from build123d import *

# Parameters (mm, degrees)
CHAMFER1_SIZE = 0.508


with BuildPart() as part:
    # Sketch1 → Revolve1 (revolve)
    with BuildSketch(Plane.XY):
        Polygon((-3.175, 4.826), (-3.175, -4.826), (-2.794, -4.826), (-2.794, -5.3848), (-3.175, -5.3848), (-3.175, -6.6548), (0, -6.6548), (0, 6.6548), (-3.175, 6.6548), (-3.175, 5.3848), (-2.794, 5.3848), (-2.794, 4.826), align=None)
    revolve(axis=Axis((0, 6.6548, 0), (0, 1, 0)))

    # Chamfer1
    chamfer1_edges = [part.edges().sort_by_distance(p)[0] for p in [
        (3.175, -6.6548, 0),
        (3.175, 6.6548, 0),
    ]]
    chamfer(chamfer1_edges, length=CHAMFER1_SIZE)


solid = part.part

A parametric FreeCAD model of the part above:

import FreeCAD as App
import Part
import Sketcher

V = App.Vector
Q = App.Units.Quantity


def edges_at(feature, points):
    """Names of the edges that pass closest to the given points."""
    edges = feature.Shape.Edges
    near = lambda p: min(range(len(edges)), key=lambda i: edges[i].distToShape(Part.Vertex(*p))[0])
    return sorted({f"Edge{near(p) + 1}" for p in points})

doc = App.newDocument("Part")
body = doc.addObject("PartDesign::Body", "Body")

# Sketch on XY plane
sketch1 = doc.addObject("Sketcher::SketchObject", "Sketch")
body.addObject(sketch1)
sketch1.AttachmentSupport = (doc.XY_Plane, [""])
sketch1.MapMode = "FlatFace"
sketch1.addGeometry(Part.LineSegment(V(-3.17, 4.83, 0), V(-3.17, -4.83, 0)), False)
sketch1.addGeometry(Part.LineSegment(V(-3.17, -4.83, 0), V(-2.79, -4.83, 0)), False)
sketch1.addGeometry(Part.LineSegment(V(-2.79, -4.83, 0), V(-2.79, -5.38, 0)), False)
sketch1.addGeometry(Part.LineSegment(V(-2.79, -5.38, 0), V(-3.17, -5.38, 0)), False)
sketch1.addGeometry(Part.LineSegment(V(-3.17, -5.38, 0), V(-3.17, -6.65, 0)), False)
sketch1.addGeometry(Part.LineSegment(V(-3.17, -6.65, 0), V(0, -6.65, 0)), False)
sketch1.addGeometry(Part.LineSegment(V(0, -6.65, 0), V(0, 6.65, 0)), False)
sketch1.addGeometry(Part.LineSegment(V(0, 6.65, 0), V(-3.17, 6.65, 0)), False)
sketch1.addGeometry(Part.LineSegment(V(-3.17, 6.65, 0), V(-3.17, 5.38, 0)), False)
sketch1.addGeometry(Part.LineSegment(V(-3.17, 5.38, 0), V(-2.79, 5.38, 0)), False)
sketch1.addGeometry(Part.LineSegment(V(-2.79, 5.38, 0), V(-2.79, 4.83, 0)), False)
sketch1.addGeometry(Part.LineSegment(V(-2.79, 4.83, 0), V(-3.17, 4.83, 0)), False)
sketch1.addConstraint(Sketcher.Constraint("Coincident", 0, 2, 1, 1))
sketch1.addConstraint(Sketcher.Constraint("Coincident", 1, 2, 2, 1))
sketch1.addConstraint(Sketcher.Constraint("Coincident", 2, 2, 3, 1))
sketch1.addConstraint(Sketcher.Constraint("Coincident", 3, 2, 4, 1))
sketch1.addConstraint(Sketcher.Constraint("Coincident", 4, 2, 5, 1))
sketch1.addConstraint(Sketcher.Constraint("Coincident", 5, 2, 6, 1))
sketch1.addConstraint(Sketcher.Constraint("Coincident", 6, 2, 7, 1))
sketch1.addConstraint(Sketcher.Constraint("Coincident", 7, 2, 8, 1))
sketch1.addConstraint(Sketcher.Constraint("Coincident", 8, 2, 9, 1))
sketch1.addConstraint(Sketcher.Constraint("Coincident", 9, 2, 10, 1))
sketch1.addConstraint(Sketcher.Constraint("Coincident", 10, 2, 11, 1))
sketch1.addConstraint(Sketcher.Constraint("Coincident", 11, 2, 0, 1))
sketch1.addConstraint(Sketcher.Constraint("Vertical", 0))
sketch1.addConstraint(Sketcher.Constraint("Horizontal", 1))
sketch1.addConstraint(Sketcher.Constraint("Vertical", 2))
sketch1.addConstraint(Sketcher.Constraint("Horizontal", 3))
sketch1.addConstraint(Sketcher.Constraint("Vertical", 4))
sketch1.addConstraint(Sketcher.Constraint("Horizontal", 5))
sketch1.addConstraint(Sketcher.Constraint("Vertical", 6))
sketch1.addConstraint(Sketcher.Constraint("Horizontal", 7))
sketch1.addConstraint(Sketcher.Constraint("Vertical", 8))
sketch1.addConstraint(Sketcher.Constraint("Horizontal", 9))
sketch1.addConstraint(Sketcher.Constraint("Vertical", 10))
sketch1.addConstraint(Sketcher.Constraint("Horizontal", 11))
sketch1.addConstraint(Sketcher.Constraint("Symmetric", 5, 2, 6, 2, -1, 1))
sketch1.addConstraint(Sketcher.Constraint("Symmetric", 3, 2, 8, 2, -1))
sketch1.addConstraint(Sketcher.Constraint("Symmetric", 1, 2, 10, 2, -1))
sketch1.addConstraint(Sketcher.Constraint("Vertical", 0, 2, 3, 2))
sketch1.addConstraint(Sketcher.Constraint("DistanceY", 0, 2, 0, 1, Q("0.38 in")))
sketch1.addConstraint(Sketcher.Constraint("DistanceY", 4, 2, 4, 1, Q("0.05 in")))
sketch1.addConstraint(Sketcher.Constraint("DistanceX", 1, 1, 1, 2, Q("0.015 in")))
sketch1.addConstraint(Sketcher.Constraint("DistanceX", 5, 1, 5, 2, Q("0.125 in")))
sketch1.addConstraint(Sketcher.Constraint("DistanceY", 2, 2, 2, 1, Q("0.022 in")))
revolution = doc.addObject("PartDesign::Revolution", "Revolution")
body.addObject(revolution)
revolution.Profile = sketch1
revolution.ReferenceAxis = (sketch1, ["V_Axis"])
revolution.Angle = 360
doc.recompute()

chamfer = doc.addObject("PartDesign::Chamfer", "Chamfer")
body.addObject(chamfer)
chamfer.Base = (revolution, edges_at(revolution, [(3.175, -6.655, 0), (3.175, 6.655, 0)]))
chamfer.Size = Q("0.02 in")

doc.recompute()
